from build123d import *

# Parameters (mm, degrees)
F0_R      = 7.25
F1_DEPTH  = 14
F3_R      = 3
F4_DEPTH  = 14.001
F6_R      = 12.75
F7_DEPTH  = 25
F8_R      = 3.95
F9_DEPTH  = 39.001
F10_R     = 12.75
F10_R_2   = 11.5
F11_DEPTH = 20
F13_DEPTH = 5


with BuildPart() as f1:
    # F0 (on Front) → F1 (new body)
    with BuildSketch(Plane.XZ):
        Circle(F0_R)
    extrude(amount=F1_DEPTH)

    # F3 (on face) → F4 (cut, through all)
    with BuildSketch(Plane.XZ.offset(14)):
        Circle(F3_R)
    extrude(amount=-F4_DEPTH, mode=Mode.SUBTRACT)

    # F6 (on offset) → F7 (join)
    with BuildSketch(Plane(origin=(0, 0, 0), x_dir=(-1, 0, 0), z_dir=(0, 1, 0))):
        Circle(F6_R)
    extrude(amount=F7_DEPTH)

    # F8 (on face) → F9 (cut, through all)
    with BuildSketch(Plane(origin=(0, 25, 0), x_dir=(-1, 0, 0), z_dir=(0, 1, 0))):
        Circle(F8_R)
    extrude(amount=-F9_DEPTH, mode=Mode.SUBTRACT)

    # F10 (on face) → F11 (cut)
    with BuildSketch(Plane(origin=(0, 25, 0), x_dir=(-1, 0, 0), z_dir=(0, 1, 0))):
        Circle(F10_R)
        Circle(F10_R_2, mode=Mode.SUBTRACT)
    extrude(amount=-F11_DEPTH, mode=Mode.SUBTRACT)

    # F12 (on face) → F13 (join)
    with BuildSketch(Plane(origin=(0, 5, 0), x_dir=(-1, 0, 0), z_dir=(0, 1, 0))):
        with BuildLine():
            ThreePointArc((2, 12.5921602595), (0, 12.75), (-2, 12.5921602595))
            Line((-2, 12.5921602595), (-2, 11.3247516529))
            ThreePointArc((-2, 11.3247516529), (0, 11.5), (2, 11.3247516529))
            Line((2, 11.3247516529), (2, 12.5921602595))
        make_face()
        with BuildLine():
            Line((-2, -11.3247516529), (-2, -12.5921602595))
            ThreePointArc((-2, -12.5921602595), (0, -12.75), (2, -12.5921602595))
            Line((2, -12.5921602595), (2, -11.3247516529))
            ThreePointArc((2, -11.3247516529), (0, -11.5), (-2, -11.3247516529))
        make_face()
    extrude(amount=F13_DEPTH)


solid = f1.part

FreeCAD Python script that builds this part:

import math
import FreeCAD as App
import Part
import Sketcher
from FreeCAD import Vector
Q = App.Units.Quantity

doc = App.newDocument("Part")
body = doc.addObject("PartDesign::Body", "Body")

sketch1 = body.newObject("Sketcher::SketchObject", "Sketch")
sketch1.AttachmentSupport = (doc.getObject("XZ_Plane"), [""])
sketch1.MapMode = "FlatFace"
sketch1.addGeometry(Part.Circle(Vector(0, 0, 0), Vector(0, 0, 1), 7), False)
sketch1.addConstraint([
    Sketcher.Constraint("Coincident", 0, 3, -1, 1),
    Sketcher.Constraint("Diameter", 0, Q("14.5 mm")),
])
pad1 = body.newObject("PartDesign::Pad", "Pad")
pad1.Profile = sketch1
pad1.Length = 14

sketch2 = body.newObject("Sketcher::SketchObject", "Sketch001")
sketch2.AttachmentSupport = (doc.getObject("XZ_Plane"), [""])
sketch2.MapMode = "FlatFace"
sketch2.AttachmentOffset = App.Placement(Vector(0, 0, 14), App.Rotation())
sketch2.addGeometry(Part.Circle(Vector(0, 0, 0), Vector(0, 0, 1), 3), False)
sketch2.addConstraint([
    Sketcher.Constraint("Coincident", 0, 3, -1, 1),
    Sketcher.Constraint("Diameter", 0, Q("6 mm")),
])
pocket1 = body.newObject("PartDesign::Pocket", "Pocket")
pocket1.Profile = sketch2
pocket1.Type = "ThroughAll"

sketch3 = body.newObject("Sketcher::SketchObject", "Sketch002")
sketch3.AttachmentSupport = (doc.getObject("XZ_Plane"), [""])
sketch3.MapMode = "FlatFace"
sketch3.addGeometry(Part.Circle(Vector(0, 0, 0), Vector(0, 0, 1), 13), False)
sketch3.addConstraint([
    Sketcher.Constraint("Coincident", 0, 3, -1, 1),
    Sketcher.Constraint("Diameter", 0, Q("25.5 mm")),
])
pad2 = body.newObject("PartDesign::Pad", "Pad001")
pad2.Profile = sketch3
pad2.Length = 25
pad2.Reversed = True

sketch4 = body.newObject("Sketcher::SketchObject", "Sketch003")
sketch4.AttachmentSupport = (doc.getObject("XZ_Plane"), [""])
sketch4.MapMode = "FlatFace"
sketch4.AttachmentOffset = App.Placement(Vector(0, 0, -25), App.Rotation())
sketch4.addGeometry(Part.Circle(Vector(0, 0, 0), Vector(0, 0, 1), 4), False)
sketch4.addConstraint([
    Sketcher.Constraint("Coincident", 0, 3, -1, 1),
    Sketcher.Constraint("Diameter", 0, Q("7.9 mm")),
])
pocket2 = body.newObject("PartDesign::Pocket", "Pocket001")
pocket2.Profile = sketch4
pocket2.Type = "ThroughAll"
pocket2.Reversed = True

sketch5 = body.newObject("Sketcher::SketchObject", "Sketch004")
sketch5.AttachmentSupport = (doc.getObject("XZ_Plane"), [""])
sketch5.MapMode = "FlatFace"
sketch5.AttachmentOffset = App.Placement(Vector(0, 0, -25), App.Rotation())
sketch5.addGeometry([
    Part.Circle(Vector(0, 0, 0), Vector(0, 0, 1), 13),
    Part.Circle(Vector(0, 0, 0), Vector(0, 0, 1), 12),
], False)
sketch5.addConstraint([
    Sketcher.Constraint("Coincident", 0, 3, -1, 1),
    Sketcher.Constraint("Coincident", 1, 3, -1, 1),
    Sketcher.Constraint("Diameter", 1, Q("23 mm")),
    Sketcher.Constraint("Diameter", 0, Q("25.5 mm")),
])
pocket3 = body.newObject("PartDesign::Pocket", "Pocket002")
pocket3.Profile = sketch5
pocket3.Length = 20
pocket3.Reversed = True

sketch6 = body.newObject("Sketcher::SketchObject", "Sketch005")
sketch6.AttachmentSupport = (doc.getObject("XZ_Plane"), [""])
sketch6.MapMode = "FlatFace"
sketch6.AttachmentOffset = App.Placement(Vector(0, 0, -5), App.Rotation())
sketch6.addGeometry([
    Part.ArcOfCircle(Part.Circle(Vector(0, 0, 0), Vector(0, 0, 1), 12.8), math.radians(80.98), math.radians(99.02)),
    Part.LineSegment(Vector(2, 12.6, 0), Vector(2, 11.3, 0)),
    Part.ArcOfCircle(Part.Circle(Vector(0, 0, 0), Vector(0, 0, 1), 11.5), math.radians(80), math.radians(100)),
    Part.LineSegment(Vector(-2, 11.3, 0), Vector(-2, 12.6, 0)),
    Part.LineSegment(Vector(2, -11.3, 0), Vector(2, -12.6, 0)),
    Part.ArcOfCircle(Part.Circle(Vector(0, 0, 0), Vector(0, 0, 1), 12.8), math.radians(-99.02), math.radians(-80.98)),
    Part.LineSegment(Vector(-2, -12.6, 0), Vector(-2, -11.3, 0)),
    Part.ArcOfCircle(Part.Circle(Vector(0, 0, 0), Vector(0, 0, 1), 11.5), math.radians(-100), math.radians(-80)),
], False)
sketch6.addConstraint([
    Sketcher.Constraint("Coincident", 0, 1, 1, 1),
    Sketcher.Constraint("Coincident", 1, 2, 2, 1),
    Sketcher.Constraint("Coincident", 2, 2, 3, 1),
    Sketcher.Constraint("Coincident", 3, 2, 0, 2),
    Sketcher.Constraint("Coincident", 4, 2, 5, 2),
    Sketcher.Constraint("Coincident", 5, 1, 6, 1),
    Sketcher.Constraint("Coincident", 6, 2, 7, 1),
    Sketcher.Constraint("Coincident", 7, 2, 4, 1),
    Sketcher.Constraint("Vertical", 1),
    Sketcher.Constraint("Vertical", 3),
    Sketcher.Constraint("Vertical", 4),
    Sketcher.Constraint("Vertical", 6),
    Sketcher.Constraint("Coincident", 0, 3, -1, 1),
    Sketcher.Constraint("Coincident", 2, 3, -1, 1),
    Sketcher.Constraint("Coincident", 5, 3, -1, 1),
    Sketcher.Constraint("Coincident", 7, 3, -1, 1),
    Sketcher.Constraint("Equal", 0, 5),
    Sketcher.Constraint("Equal", 2, 7),
    Sketcher.Constraint("Horizontal", 1, 2, 2, 2),
    Sketcher.Constraint("Horizontal", 4, 2, 5, 1),
    Sketcher.Constraint("Vertical", 1, 2, 4, 2),
    Sketcher.Constraint("Radius", 2, Q("11.5 mm")),
    Sketcher.Constraint("Radius", 0, Q("12.75 mm")),
    Sketcher.Constraint("DistanceX", -1, 1, 0, 1, Q("2 mm")),
])
pad3 = body.newObject("PartDesign::Pad", "Pad002")
pad3.Profile = sketch6
pad3.Length = 5
pad3.Reversed = True

doc.recompute()
